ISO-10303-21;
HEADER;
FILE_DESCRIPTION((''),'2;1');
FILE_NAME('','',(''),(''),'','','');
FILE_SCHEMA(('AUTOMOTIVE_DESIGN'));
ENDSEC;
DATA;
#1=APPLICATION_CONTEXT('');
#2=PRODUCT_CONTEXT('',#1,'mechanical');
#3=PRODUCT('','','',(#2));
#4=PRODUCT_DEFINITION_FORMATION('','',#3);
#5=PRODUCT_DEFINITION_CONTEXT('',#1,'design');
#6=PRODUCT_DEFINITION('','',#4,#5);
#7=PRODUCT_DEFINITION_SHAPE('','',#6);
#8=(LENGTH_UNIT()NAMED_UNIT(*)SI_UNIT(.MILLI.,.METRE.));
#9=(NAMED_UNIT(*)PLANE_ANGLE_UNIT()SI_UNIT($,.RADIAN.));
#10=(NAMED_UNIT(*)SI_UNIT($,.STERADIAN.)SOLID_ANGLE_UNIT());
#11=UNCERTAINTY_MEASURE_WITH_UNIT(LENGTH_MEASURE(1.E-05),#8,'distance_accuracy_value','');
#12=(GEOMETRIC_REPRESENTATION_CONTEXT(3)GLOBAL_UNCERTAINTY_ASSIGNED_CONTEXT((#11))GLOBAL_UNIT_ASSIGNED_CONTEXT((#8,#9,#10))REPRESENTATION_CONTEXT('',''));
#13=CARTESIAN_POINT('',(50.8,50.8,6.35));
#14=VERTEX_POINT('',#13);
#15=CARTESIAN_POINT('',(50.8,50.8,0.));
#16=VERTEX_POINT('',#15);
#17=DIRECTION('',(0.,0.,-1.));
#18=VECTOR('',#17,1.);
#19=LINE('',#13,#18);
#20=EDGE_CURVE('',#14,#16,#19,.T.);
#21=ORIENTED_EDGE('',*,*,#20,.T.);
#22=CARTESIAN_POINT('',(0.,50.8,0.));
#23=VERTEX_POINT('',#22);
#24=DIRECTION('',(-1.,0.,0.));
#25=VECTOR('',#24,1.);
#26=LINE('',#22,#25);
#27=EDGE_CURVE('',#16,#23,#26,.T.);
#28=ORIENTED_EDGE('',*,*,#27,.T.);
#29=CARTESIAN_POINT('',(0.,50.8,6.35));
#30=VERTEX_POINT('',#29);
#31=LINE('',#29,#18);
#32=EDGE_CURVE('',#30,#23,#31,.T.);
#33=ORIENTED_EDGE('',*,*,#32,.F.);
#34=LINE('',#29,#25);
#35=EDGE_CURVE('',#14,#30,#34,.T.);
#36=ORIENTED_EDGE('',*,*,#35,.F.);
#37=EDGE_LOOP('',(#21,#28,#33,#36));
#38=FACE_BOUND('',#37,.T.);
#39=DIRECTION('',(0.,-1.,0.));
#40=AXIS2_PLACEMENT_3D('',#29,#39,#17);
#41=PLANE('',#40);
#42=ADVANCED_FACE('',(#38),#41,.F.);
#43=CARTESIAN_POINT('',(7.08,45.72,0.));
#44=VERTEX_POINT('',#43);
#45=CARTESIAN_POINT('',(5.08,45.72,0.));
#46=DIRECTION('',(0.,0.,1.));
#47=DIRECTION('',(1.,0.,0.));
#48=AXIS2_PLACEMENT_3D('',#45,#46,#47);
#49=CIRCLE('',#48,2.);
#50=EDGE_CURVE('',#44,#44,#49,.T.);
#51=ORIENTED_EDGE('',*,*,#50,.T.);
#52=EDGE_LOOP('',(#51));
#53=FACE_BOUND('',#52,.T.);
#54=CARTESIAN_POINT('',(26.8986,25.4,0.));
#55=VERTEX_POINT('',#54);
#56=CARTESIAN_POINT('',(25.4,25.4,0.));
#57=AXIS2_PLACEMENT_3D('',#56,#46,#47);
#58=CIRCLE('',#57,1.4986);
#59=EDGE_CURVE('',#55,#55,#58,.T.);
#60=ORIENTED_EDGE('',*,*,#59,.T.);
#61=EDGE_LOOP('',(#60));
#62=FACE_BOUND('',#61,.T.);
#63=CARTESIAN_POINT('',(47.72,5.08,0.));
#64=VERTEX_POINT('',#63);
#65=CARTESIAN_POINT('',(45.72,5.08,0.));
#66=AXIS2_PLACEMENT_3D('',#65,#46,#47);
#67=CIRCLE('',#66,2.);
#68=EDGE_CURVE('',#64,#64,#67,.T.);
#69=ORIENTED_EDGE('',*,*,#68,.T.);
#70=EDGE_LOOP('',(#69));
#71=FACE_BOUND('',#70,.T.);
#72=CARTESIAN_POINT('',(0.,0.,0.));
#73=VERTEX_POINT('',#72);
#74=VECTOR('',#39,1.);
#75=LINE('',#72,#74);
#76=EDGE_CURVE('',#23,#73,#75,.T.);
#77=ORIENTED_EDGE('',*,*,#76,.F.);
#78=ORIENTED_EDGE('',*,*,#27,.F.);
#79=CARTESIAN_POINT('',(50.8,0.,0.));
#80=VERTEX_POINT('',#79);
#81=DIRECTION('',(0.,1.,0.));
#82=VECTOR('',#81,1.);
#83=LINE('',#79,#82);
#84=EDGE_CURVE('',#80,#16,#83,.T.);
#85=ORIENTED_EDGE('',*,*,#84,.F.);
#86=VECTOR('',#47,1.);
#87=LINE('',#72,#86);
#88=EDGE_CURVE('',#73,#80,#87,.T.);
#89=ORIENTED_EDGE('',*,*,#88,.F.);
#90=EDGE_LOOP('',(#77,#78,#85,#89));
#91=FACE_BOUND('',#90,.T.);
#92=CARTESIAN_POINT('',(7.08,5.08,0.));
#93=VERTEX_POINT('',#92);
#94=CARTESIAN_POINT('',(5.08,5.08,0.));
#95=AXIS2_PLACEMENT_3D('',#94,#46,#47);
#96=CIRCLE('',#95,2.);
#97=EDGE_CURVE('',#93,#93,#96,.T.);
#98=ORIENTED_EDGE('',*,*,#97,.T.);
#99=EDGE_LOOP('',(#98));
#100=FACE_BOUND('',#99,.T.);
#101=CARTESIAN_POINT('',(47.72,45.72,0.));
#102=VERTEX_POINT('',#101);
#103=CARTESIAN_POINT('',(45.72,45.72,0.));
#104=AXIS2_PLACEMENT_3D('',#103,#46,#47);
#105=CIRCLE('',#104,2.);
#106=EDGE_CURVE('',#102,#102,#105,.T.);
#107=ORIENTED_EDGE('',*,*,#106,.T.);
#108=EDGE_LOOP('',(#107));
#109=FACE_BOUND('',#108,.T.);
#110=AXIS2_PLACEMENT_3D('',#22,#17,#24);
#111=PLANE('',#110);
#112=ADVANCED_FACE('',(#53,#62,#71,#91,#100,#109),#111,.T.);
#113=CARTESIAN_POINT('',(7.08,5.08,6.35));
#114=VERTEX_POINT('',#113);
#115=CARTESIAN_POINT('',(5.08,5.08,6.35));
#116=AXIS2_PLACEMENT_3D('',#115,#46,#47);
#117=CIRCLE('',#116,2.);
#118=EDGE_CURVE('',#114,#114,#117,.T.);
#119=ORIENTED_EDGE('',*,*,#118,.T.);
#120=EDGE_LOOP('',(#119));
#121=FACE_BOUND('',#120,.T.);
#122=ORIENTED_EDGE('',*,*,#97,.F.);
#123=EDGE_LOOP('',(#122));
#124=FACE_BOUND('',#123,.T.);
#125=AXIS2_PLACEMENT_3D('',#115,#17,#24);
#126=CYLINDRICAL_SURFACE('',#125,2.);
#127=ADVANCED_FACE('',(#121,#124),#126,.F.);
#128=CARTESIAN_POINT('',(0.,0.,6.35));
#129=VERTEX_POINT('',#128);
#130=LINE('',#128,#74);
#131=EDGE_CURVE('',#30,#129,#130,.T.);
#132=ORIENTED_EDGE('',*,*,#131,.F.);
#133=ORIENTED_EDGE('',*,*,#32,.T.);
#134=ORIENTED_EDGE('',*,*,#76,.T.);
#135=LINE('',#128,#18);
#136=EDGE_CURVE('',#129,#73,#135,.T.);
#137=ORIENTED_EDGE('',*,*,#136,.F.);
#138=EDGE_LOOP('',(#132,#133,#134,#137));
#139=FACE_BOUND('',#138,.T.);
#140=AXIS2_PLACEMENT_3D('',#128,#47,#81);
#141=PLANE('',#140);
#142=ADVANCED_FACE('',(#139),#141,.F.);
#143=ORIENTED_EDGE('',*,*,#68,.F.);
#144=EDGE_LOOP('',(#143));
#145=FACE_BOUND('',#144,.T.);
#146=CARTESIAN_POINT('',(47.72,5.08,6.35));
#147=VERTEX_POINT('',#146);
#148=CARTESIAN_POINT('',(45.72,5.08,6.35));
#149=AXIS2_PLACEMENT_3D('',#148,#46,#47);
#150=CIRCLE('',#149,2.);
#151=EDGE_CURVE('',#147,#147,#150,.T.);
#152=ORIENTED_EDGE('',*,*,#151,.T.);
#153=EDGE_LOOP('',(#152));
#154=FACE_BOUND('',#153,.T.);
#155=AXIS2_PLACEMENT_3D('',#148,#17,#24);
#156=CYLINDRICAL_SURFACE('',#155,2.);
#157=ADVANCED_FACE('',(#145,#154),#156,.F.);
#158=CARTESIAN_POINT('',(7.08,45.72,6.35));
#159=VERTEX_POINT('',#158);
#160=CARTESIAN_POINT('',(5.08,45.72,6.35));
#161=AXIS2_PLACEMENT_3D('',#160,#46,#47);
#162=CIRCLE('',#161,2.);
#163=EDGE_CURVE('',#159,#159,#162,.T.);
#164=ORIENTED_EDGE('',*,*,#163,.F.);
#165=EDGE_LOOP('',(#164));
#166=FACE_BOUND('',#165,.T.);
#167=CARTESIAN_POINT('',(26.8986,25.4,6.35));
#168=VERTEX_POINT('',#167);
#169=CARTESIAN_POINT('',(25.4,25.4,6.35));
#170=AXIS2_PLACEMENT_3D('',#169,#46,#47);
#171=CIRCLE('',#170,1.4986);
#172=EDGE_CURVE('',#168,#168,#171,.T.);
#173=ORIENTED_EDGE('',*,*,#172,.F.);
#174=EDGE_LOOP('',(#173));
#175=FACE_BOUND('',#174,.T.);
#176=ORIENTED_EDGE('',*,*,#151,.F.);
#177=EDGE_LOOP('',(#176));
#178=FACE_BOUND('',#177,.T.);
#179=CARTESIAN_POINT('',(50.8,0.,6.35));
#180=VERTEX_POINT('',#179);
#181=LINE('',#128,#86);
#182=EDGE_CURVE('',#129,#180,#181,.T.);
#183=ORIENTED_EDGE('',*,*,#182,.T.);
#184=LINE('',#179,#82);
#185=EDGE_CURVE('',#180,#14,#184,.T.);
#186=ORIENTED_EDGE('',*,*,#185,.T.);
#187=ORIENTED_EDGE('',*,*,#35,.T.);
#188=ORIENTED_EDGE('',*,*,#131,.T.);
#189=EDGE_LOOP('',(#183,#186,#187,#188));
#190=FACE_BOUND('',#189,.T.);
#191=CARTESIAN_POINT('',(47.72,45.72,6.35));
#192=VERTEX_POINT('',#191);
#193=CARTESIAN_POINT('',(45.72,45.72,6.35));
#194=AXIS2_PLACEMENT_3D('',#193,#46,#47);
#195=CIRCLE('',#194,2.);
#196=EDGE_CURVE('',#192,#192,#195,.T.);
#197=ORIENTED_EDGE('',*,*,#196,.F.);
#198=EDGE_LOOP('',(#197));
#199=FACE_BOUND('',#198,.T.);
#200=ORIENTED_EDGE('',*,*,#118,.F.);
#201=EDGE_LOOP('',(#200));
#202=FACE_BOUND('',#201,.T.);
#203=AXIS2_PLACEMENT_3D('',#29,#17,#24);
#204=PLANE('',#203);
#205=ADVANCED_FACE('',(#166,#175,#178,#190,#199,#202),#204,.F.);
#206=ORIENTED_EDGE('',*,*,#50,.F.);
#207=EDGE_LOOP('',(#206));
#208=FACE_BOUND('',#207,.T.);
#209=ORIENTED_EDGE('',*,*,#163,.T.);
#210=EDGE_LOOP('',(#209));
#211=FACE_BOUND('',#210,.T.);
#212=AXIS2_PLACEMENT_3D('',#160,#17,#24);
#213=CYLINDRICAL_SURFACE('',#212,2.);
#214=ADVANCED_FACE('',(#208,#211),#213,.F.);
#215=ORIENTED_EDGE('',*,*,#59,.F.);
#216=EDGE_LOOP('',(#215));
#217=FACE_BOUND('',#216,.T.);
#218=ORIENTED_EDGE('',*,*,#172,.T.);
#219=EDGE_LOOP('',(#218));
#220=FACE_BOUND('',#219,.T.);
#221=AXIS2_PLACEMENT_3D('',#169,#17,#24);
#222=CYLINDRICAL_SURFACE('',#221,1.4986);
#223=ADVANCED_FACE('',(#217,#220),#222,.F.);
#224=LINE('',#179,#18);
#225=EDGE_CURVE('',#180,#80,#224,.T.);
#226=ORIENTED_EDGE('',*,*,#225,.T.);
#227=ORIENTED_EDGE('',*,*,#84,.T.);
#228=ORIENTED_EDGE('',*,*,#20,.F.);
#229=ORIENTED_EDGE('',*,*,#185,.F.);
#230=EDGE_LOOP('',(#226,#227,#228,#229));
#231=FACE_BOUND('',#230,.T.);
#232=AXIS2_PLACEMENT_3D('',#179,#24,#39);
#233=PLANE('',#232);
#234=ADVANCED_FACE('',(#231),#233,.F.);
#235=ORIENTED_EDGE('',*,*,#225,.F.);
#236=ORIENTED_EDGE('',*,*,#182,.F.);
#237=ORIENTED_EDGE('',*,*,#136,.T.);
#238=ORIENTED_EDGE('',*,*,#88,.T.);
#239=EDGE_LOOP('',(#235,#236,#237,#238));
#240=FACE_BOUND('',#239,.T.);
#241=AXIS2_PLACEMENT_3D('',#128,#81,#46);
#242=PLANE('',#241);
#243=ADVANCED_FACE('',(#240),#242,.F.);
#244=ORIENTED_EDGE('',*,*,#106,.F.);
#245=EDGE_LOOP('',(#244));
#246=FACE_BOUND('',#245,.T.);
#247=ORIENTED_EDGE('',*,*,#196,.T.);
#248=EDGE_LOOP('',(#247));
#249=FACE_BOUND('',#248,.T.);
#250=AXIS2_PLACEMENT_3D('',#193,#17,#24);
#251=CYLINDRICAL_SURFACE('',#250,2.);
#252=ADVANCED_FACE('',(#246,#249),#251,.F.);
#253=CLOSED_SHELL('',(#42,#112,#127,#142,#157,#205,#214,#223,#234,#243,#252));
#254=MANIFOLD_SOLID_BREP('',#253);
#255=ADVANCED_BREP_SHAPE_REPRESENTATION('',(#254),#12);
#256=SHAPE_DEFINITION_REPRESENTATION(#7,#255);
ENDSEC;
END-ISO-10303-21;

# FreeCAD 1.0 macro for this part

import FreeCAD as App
import Part
import Sketcher
from FreeCAD import Vector
Q = App.Units.Quantity

doc = App.newDocument("Part")
params = doc.addObject("Spreadsheet::Sheet", "Params")
for row, (alias, value) in enumerate([
    ("sketch1_width", "2 in"),
    ("sketch1_diameter", "0.118 in"),
    ("pad1_length", "0.25 in"),
], start=1):
    params.set(f"A{row}", alias)
    params.set(f"B{row}", "=" + value)
    params.setAlias(f"B{row}", alias)

body = doc.addObject("PartDesign::Body", "Body")

sketch1 = body.newObject("Sketcher::SketchObject", "Sketch")
sketch1.AttachmentSupport = (doc.getObject("XY_Plane"), [""])
sketch1.MapMode = "FlatFace"
sketch1.addGeometry(Part.LineSegment(Vector(0, 50.8, 0), Vector(0, 0, 0)), False)
sketch1.addGeometry(Part.LineSegment(Vector(0, 0, 0), Vector(50.8, 0, 0)), False)
sketch1.addGeometry(Part.LineSegment(Vector(50.8, 0, 0), Vector(50.8, 50.8, 0)), False)
sketch1.addGeometry(Part.LineSegment(Vector(50.8, 50.8, 0), Vector(0, 50.8, 0)), False)
sketch1.addGeometry(Part.Circle(Vector(5.1, 5.1, 0), Vector(0, 0, 1), 2), False)
sketch1.addGeometry(Part.Circle(Vector(45.7, 5.1, 0), Vector(0, 0, 1), 2), False)
sketch1.addGeometry(Part.Circle(Vector(5.1, 45.7, 0), Vector(0, 0, 1), 2), False)
sketch1.addGeometry(Part.Circle(Vector(25.4, 25.4, 0), Vector(0, 0, 1), 1.5), False)
sketch1.addGeometry(Part.Circle(Vector(45.7, 45.7, 0), Vector(0, 0, 1), 2), False)
sketch1.addConstraint(Sketcher.Constraint("Coincident", 0, 2, 1, 1))
sketch1.addConstraint(Sketcher.Constraint("Coincident", 1, 2, 2, 1))
sketch1.addConstraint(Sketcher.Constraint("Coincident", 2, 2, 3, 1))
sketch1.addConstraint(Sketcher.Constraint("Coincident", 3, 2, 0, 1))
sketch1.addConstraint(Sketcher.Constraint("Vertical", 0))
sketch1.addConstraint(Sketcher.Constraint("Horizontal", 1))
sketch1.addConstraint(Sketcher.Constraint("Vertical", 2))
sketch1.addConstraint(Sketcher.Constraint("Horizontal", 3))
sketch1.addConstraint(Sketcher.Constraint("Coincident", 0, 2, -1, 1))
sketch1.addConstraint(Sketcher.Constraint("Equal", 4, 5))
sketch1.addConstraint(Sketcher.Constraint("Equal", 5, 6))
sketch1.addConstraint(Sketcher.Constraint("Equal", 6, 8))
sketch1.addConstraint(Sketcher.Constraint("Horizontal", 4, 3, 5, 3))
sketch1.addConstraint(Sketcher.Constraint("Horizontal", 6, 3, 8, 3))
sketch1.addConstraint(Sketcher.Constraint("Vertical", 4, 3, 6, 3))
sketch1.addConstraint(Sketcher.Constraint("Vertical", 5, 3, 8, 3))
sketch1.addConstraint(Sketcher.Constraint("Equal", 3, 0))
sketch1.addConstraint(Sketcher.Constraint("DistanceX", 1, 1, 1, 2, Q("2 in")))
sketch1.addConstraint(Sketcher.Constraint("Diameter", 7, Q("0.118 in")))
sketch1.addConstraint(Sketcher.Constraint("DistanceX", -1, 1, 7, 3, Q("1 in")))
sketch1.addConstraint(Sketcher.Constraint("DistanceY", -1, 1, 7, 3, Q("1 in")))
sketch1.addConstraint(Sketcher.Constraint("DistanceX", -1, 1, 4, 3, Q("0.2 in")))
sketch1.addConstraint(Sketcher.Constraint("DistanceY", -1, 1, 4, 3, Q("0.2 in")))
sketch1.addConstraint(Sketcher.Constraint("DistanceX", -1, 1, 5, 3, Q("1.8 in")))
sketch1.addConstraint(Sketcher.Constraint("DistanceY", -1, 1, 6, 3, Q("1.8 in")))
sketch1.addConstraint(Sketcher.Constraint("Diameter", 4, Q("4 mm")))
sketch1.setExpression("Constraints[17]", "Params.sketch1_width")
sketch1.setExpression("Constraints[18]", "Params.sketch1_diameter")
pad1 = body.newObject("PartDesign::Pad", "Pad")
pad1.Profile = sketch1
pad1.setExpression("Length", "Params.pad1_length")

doc.recompute()
